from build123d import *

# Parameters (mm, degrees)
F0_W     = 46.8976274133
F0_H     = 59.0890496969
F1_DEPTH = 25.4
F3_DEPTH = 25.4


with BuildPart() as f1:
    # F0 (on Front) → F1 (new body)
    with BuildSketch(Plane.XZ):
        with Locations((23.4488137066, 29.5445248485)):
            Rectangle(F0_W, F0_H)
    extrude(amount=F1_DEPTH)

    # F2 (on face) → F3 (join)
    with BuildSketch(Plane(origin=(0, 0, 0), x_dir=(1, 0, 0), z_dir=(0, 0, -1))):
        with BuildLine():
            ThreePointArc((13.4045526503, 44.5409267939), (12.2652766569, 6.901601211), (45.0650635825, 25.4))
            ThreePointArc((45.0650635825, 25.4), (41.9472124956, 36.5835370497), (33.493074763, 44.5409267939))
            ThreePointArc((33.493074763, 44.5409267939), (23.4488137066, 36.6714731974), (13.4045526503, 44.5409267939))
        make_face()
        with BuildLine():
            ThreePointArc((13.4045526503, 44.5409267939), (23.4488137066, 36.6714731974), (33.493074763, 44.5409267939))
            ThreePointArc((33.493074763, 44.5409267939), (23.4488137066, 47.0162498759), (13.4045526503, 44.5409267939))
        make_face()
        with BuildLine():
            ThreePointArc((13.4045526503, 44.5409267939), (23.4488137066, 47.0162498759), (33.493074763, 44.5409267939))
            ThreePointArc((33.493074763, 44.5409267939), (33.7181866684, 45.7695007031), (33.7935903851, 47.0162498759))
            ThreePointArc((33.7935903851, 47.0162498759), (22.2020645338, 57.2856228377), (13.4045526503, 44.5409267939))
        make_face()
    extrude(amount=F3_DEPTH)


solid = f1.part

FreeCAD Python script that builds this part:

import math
import FreeCAD as App
import Part
import Sketcher
Q = App.Units.Quantity


def add_polygon(sketch, points):
    """Adds a closed chain of lines whose ends are joined by coincident constraints."""
    first, n = sketch.GeometryCount, len(points)
    for a, b in zip(points, points[1:] + points[:1]):
        sketch.addGeometry(Part.LineSegment(App.Vector(*a, 0), App.Vector(*b, 0)), False)
    for i in range(n):
        sketch.addConstraint(Sketcher.Constraint("Coincident", first + i, 2, first + (i + 1) % n, 1))

doc = App.newDocument("Part")
body = doc.addObject("PartDesign::Body", "Body")

sketch1 = body.newObject("Sketcher::SketchObject", "Sketch")
sketch1.AttachmentSupport = (doc.getObject("XZ_Plane"), [""])
sketch1.MapMode = "FlatFace"
add_polygon(sketch1, [(0, 59.08905), (0, 0), (46.897627, 0), (46.897627, 59.08905)])
sketch1.addConstraint([
    Sketcher.Constraint("Vertical", 0),
    Sketcher.Constraint("Horizontal", 1),
    Sketcher.Constraint("Vertical", 2),
    Sketcher.Constraint("Horizontal", 3),
    Sketcher.Constraint("Coincident", 0, 2, -1, 1),
    Sketcher.Constraint("DistanceY", 0, 2, 0, 1, Q("59.08905 mm")),
    Sketcher.Constraint("DistanceX", 1, 1, 1, 2, Q("46.897627 mm")),
])
pad1 = body.newObject("PartDesign::Pad", "Pad")
pad1.Profile = sketch1
pad1.Length = Q("1 in")

sketch2 = body.newObject("Sketcher::SketchObject", "Sketch001")
sketch2.AttachmentSupport = (doc.getObject("XY_Plane"), [""])
sketch2.MapMode = "FlatFace"
sketch2.addGeometry([
    Part.ArcOfCircle(Part.Circle(App.Vector(23.448814, -25.4, 0), App.Vector(0, 0, 1), 21.61625), math.radians(0), math.radians(242.311617)),
    Part.ArcOfCircle(Part.Circle(App.Vector(23.448814, -25.4, 0), App.Vector(0, 0, 1), 21.61625), math.radians(-62.311617), math.radians(0)),
    Part.ArcOfCircle(Part.Circle(App.Vector(23.448814, -47.01625, 0), App.Vector(0, 0, 1), 10.344777), math.radians(0), math.radians(13.844191)),
    Part.ArcOfCircle(Part.Circle(App.Vector(23.448814, -47.01625, 0), App.Vector(0, 0, 1), 10.344777), math.radians(166.155809), math.radians(360)),
], False)
sketch2.addConstraint([
    Sketcher.Constraint("Tangent", 0, 1, 1, 2),
    Sketcher.Constraint("Coincident", 1, 1, 2, 2),
    Sketcher.Constraint("Tangent", 2, 1, 3, 2),
    Sketcher.Constraint("Coincident", 3, 1, 0, 2),
    Sketcher.Constraint("Equal", 0, 1),
    Sketcher.Constraint("Equal", 2, 3),
    Sketcher.Constraint("Horizontal", 1, 3, 0, 1),
    Sketcher.Constraint("Horizontal", 3, 3, 2, 1),
    Sketcher.Constraint("Horizontal", 1, 1, 3, 1),
    Sketcher.Constraint("DistanceY", 0, 3, -1, 1, Q("1 in")),
    Sketcher.Constraint("Radius", 0, Q("21.61625 mm")),
    Sketcher.Constraint("Radius", 2, Q("10.344777 mm")),
    Sketcher.Constraint("DistanceY", 2, 3, -1, 1, Q("47.01625 mm")),
    Sketcher.Constraint("DistanceX", -1, 1, 2, 1, Q("33.79359 mm")),
])
pad2 = body.newObject("PartDesign::Pad", "Pad001")
pad2.Profile = sketch2
pad2.Length = Q("1 in")
pad2.Reversed = True

doc.recompute()
